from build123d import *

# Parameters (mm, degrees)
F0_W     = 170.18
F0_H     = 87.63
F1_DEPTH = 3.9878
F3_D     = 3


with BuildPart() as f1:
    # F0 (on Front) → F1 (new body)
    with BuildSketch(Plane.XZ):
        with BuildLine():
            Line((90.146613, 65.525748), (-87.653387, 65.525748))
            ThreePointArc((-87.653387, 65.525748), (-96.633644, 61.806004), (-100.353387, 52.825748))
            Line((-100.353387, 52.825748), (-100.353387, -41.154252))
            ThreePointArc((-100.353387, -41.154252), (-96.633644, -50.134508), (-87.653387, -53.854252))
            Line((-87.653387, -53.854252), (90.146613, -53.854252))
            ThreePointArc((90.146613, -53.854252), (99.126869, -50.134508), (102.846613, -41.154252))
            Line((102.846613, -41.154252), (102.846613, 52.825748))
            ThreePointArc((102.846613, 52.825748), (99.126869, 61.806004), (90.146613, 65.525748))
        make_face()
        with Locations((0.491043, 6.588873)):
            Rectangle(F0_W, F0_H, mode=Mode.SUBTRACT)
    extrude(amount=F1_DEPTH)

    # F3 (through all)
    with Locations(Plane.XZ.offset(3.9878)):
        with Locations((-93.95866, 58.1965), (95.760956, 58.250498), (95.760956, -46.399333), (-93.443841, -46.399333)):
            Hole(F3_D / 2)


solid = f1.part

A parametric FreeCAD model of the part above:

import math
import FreeCAD as App
import Part
import Sketcher

V = App.Vector
Q = App.Units.Quantity

doc = App.newDocument("Part")
body = doc.addObject("PartDesign::Body", "Body")

sketch1 = doc.addObject("Sketcher::SketchObject", "Sketch")
body.addObject(sketch1)
sketch1.AttachmentSupport = (doc.XZ_Plane, [""])
sketch1.MapMode = "FlatFace"
sketch1.addGeometry([
    Part.LineSegment(V(90, 66, 0), V(-88, 66, 0)),
    Part.ArcOfCircle(Part.Circle(V(-88, 53, 0), V(0, 0, 1), 13), math.radians(90), math.radians(180)),
    Part.LineSegment(V(-100, 53, 0), V(-100, -41, 0)),
    Part.ArcOfCircle(Part.Circle(V(-88, -41, 0), V(0, 0, 1), 13), math.radians(180), math.radians(270)),
    Part.LineSegment(V(-88, -54, 0), V(90, -54, 0)),
    Part.ArcOfCircle(Part.Circle(V(90, -41, 0), V(0, 0, 1), 13), math.radians(-90), math.radians(0)),
    Part.LineSegment(V(103, -41, 0), V(103, 53, 0)),
    Part.ArcOfCircle(Part.Circle(V(90, 53, 0), V(0, 0, 1), 13), math.radians(0), math.radians(90)),
    Part.LineSegment(V(86, -37, 0), V(-85, -37, 0)),
    Part.LineSegment(V(-85, -37, 0), V(-85, 50, 0)),
    Part.LineSegment(V(-85, 50, 0), V(86, 50, 0)),
    Part.LineSegment(V(86, 50, 0), V(86, -37, 0)),
], False)
sketch1.addConstraint([
    Sketcher.Constraint("Tangent", 0, 2, 1, 1),
    Sketcher.Constraint("Tangent", 1, 2, 2, 1),
    Sketcher.Constraint("Tangent", 2, 2, 3, 1),
    Sketcher.Constraint("Tangent", 3, 2, 4, 1),
    Sketcher.Constraint("Tangent", 4, 2, 5, 1),
    Sketcher.Constraint("Tangent", 5, 2, 6, 1),
    Sketcher.Constraint("Tangent", 6, 2, 7, 1),
    Sketcher.Constraint("Tangent", 7, 2, 0, 1),
    Sketcher.Constraint("Coincident", 8, 2, 9, 1),
    Sketcher.Constraint("Coincident", 9, 2, 10, 1),
    Sketcher.Constraint("Coincident", 10, 2, 11, 1),
    Sketcher.Constraint("Coincident", 11, 2, 8, 1),
    Sketcher.Constraint("Horizontal", 0),
    Sketcher.Constraint("Vertical", 2),
    Sketcher.Constraint("Horizontal", 4),
    Sketcher.Constraint("Vertical", 6),
    Sketcher.Constraint("Horizontal", 8),
    Sketcher.Constraint("Vertical", 9),
    Sketcher.Constraint("Horizontal", 10),
    Sketcher.Constraint("Vertical", 11),
    Sketcher.Constraint("Equal", 1, 3),
    Sketcher.Constraint("Equal", 3, 5),
    Sketcher.Constraint("Equal", 5, 7),
    Sketcher.Constraint("Radius", 1, Q("0.4999999 in")),
    Sketcher.Constraint("DistanceX", 0, 2, 0, 1, Q("7 in")),
    Sketcher.Constraint("DistanceX", 8, 2, 8, 1, Q("6.7 in")),
    Sketcher.Constraint("DistanceY", 2, 2, 2, 1, Q("3.7 in")),
    Sketcher.Constraint("DistanceY", 9, 1, 9, 2, Q("3.45 in")),
    Sketcher.Constraint("DistanceX", 1, 3, -1, 1, Q("87.653388 mm")),
    Sketcher.Constraint("DistanceY", -1, 1, 1, 3, Q("52.825749 mm")),
    Sketcher.Constraint("DistanceX", 3, 3, 8, 2, Q("3.054431 mm")),
    Sketcher.Constraint("DistanceY", 8, 2, -1, 1, Q("37.226127 mm")),
])
pad1 = doc.addObject("PartDesign::Pad", "Pad")
body.addObject(pad1)
pad1.Profile = sketch1
pad1.Length = Q("0.157 in")

sketch2 = doc.addObject("Sketcher::SketchObject", "Sketch001")
body.addObject(sketch2)
sketch2.AttachmentSupport = (doc.XZ_Plane, [""])
sketch2.MapMode = "FlatFace"
sketch2.AttachmentOffset = App.Placement(V(0, 0, 0.157 * 25.4), App.Rotation())
sketch2.addGeometry([
    Part.Circle(V(-94, 58.2, 0), V(0, 0, 1), 1.5),
    Part.Circle(V(95.8, 58.3, 0), V(0, 0, 1), 1.5),
    Part.Circle(V(95.8, -46.4, 0), V(0, 0, 1), 1.5),
    Part.Circle(V(-93.4, -46.4, 0), V(0, 0, 1), 1.5),
], False)
sketch2.addConstraint([
    Sketcher.Constraint("Equal", 0, 1),
    Sketcher.Constraint("Equal", 1, 2),
    Sketcher.Constraint("Equal", 2, 3),
    Sketcher.Constraint("Horizontal", 2, 3, 3, 3),
    Sketcher.Constraint("Vertical", 1, 3, 2, 3),
    Sketcher.Constraint("Diameter", 0, Q("3 mm")),
    Sketcher.Constraint("DistanceY", -1, 1, 0, 3, Q("58.1965 mm")),
    Sketcher.Constraint("DistanceX", 0, 3, -1, 1, Q("93.95866 mm")),
    Sketcher.Constraint("DistanceX", 3, 3, -1, 1, Q("93.443841 mm")),
    Sketcher.Constraint("DistanceY", 2, 3, 1, 3, Q("104.649831 mm")),
    Sketcher.Constraint("DistanceX", -1, 1, 1, 3, Q("95.760956 mm")),
    Sketcher.Constraint("DistanceY", -1, 1, 1, 3, Q("58.250498 mm")),
])
doc.recompute()
hole = doc.addObject("PartDesign::Hole", "Hole")
body.addObject(hole)
hole.Profile = sketch2
hole.ThreadType = "None"
hole.Diameter = 3
hole.DepthType = "ThroughAll"

doc.recompute()
